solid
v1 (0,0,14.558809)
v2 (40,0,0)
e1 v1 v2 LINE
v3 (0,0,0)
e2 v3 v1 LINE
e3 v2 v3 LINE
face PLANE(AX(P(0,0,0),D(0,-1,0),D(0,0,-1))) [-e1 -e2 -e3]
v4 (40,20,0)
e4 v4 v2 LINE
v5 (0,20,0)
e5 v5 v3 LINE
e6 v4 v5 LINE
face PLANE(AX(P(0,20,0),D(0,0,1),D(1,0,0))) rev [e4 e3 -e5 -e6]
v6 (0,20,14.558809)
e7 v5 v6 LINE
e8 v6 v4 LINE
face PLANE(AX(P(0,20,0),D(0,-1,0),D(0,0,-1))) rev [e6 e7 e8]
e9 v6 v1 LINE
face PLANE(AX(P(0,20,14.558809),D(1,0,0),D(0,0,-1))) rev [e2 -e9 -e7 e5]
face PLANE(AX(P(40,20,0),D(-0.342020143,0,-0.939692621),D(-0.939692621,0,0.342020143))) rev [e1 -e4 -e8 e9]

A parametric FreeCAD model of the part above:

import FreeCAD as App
import Part
import Sketcher

V = App.Vector
Q = App.Units.Quantity

doc = App.newDocument("Part")
body = doc.addObject("PartDesign::Body", "Body")

sketch1 = body.newObject("Sketcher::SketchObject", "Sketch")
sketch1.AttachmentSupport = (doc.getObject("XZ_Plane"), [""])
sketch1.MapMode = "FlatFace"
sketch1.addGeometry([
    Part.LineSegment(V(40, 0, 0), V(0, 0, 0)),
    Part.LineSegment(V(0, 0, 0), V(0, 15, 0)),
    Part.LineSegment(V(0, 15, 0), V(40, 0, 0)),
], False)
sketch1.addConstraint([
    Sketcher.Constraint("Coincident", 0, 2, 1, 1),
    Sketcher.Constraint("Coincident", 1, 2, 2, 1),
    Sketcher.Constraint("Coincident", 2, 2, 0, 1),
    Sketcher.Constraint("Horizontal", 0),
    Sketcher.Constraint("Vertical", 1),
    Sketcher.Constraint("Coincident", 0, 2, -1, 1),
    Sketcher.Constraint("DistanceX", 0, 2, 0, 1, 40.0),
    Sketcher.Constraint("Angle", 2, Q("-20 deg")),
])
pad1 = body.newObject("PartDesign::Pad", "Pad")
pad1.Profile = sketch1
pad1.Length = 20
pad1.Reversed = True

doc.recompute()
